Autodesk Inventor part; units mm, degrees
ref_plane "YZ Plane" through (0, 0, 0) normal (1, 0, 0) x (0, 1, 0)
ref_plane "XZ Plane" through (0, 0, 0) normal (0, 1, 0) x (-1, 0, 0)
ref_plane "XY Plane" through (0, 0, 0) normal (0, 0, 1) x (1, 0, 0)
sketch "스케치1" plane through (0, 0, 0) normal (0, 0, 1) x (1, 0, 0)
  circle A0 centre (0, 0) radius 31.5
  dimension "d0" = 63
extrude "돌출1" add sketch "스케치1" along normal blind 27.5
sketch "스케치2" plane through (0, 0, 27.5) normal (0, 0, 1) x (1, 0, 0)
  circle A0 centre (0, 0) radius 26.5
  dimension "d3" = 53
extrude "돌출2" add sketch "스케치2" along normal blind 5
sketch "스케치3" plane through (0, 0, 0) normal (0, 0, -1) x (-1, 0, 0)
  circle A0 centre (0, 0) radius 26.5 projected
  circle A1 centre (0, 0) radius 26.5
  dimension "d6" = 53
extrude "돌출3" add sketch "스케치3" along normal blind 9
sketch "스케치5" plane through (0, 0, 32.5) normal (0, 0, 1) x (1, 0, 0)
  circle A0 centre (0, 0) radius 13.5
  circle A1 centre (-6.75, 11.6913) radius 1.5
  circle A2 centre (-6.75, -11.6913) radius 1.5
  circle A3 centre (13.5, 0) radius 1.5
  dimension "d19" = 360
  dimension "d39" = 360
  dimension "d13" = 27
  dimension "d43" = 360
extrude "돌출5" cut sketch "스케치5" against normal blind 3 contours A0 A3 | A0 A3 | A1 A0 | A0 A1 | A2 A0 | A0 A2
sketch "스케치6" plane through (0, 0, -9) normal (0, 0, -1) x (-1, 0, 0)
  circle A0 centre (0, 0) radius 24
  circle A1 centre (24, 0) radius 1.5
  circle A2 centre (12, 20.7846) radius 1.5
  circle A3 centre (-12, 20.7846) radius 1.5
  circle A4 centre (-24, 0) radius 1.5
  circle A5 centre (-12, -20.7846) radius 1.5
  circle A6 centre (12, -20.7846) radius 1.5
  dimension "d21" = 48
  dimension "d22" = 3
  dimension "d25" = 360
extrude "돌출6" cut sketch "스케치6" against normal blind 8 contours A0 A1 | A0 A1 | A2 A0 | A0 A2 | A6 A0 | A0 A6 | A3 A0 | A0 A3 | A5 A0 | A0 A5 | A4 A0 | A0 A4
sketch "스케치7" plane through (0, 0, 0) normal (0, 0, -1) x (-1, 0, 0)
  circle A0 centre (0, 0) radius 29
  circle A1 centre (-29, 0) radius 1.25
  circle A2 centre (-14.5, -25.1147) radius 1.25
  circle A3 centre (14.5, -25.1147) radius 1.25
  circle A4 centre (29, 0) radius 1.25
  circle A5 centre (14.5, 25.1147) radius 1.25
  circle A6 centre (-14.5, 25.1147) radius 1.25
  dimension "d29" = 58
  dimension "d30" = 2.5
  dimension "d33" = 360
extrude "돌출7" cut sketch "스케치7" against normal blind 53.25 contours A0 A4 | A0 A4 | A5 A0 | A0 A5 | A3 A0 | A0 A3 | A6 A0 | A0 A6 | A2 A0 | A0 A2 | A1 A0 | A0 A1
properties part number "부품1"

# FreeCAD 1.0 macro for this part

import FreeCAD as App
import Part
import Sketcher
from FreeCAD import Vector
Q = App.Units.Quantity

doc = App.newDocument("Part")
body = doc.addObject("PartDesign::Body", "Body")

sketch1 = doc.addObject("Sketcher::SketchObject", "Sketch")
body.addObject(sketch1)
sketch1.AttachmentSupport = (doc.XY_Plane, [""])
sketch1.MapMode = "FlatFace"
sketch1.addGeometry(Part.Circle(Vector(0, 0, 0), Vector(0, 0, 1), 31.5), False)
sketch1.addConstraint([
    Sketcher.Constraint("Coincident", 0, 3, -1, 1),
    Sketcher.Constraint("Diameter", 0, Q("63 mm")),
])
pad1 = doc.addObject("PartDesign::Pad", "Pad")
body.addObject(pad1)
pad1.Profile = sketch1
pad1.Length = 27.5

sketch2 = doc.addObject("Sketcher::SketchObject", "Sketch001")
body.addObject(sketch2)
sketch2.AttachmentSupport = (doc.XY_Plane, [""])
sketch2.MapMode = "FlatFace"
sketch2.AttachmentOffset = App.Placement(Vector(0, 0, 27.5), App.Rotation())
sketch2.addGeometry(Part.Circle(Vector(0, 0, 0), Vector(0, 0, 1), 26.5), False)
sketch2.addConstraint([
    Sketcher.Constraint("Coincident", 0, 3, -1, 1),
    Sketcher.Constraint("Diameter", 0, Q("53 mm")),
])
pad2 = doc.addObject("PartDesign::Pad", "Pad001")
body.addObject(pad2)
pad2.Profile = sketch2
pad2.Length = 5

sketch3 = doc.addObject("Sketcher::SketchObject", "Sketch002")
body.addObject(sketch3)
sketch3.AttachmentSupport = (doc.XY_Plane, [""])
sketch3.MapMode = "FlatFace"
sketch3.addGeometry(Part.Circle(Vector(0, 0, 0), Vector(0, 0, 1), 26.5), False)
sketch3.addConstraint([
    Sketcher.Constraint("Coincident", 0, 3, -1, 1),
    Sketcher.Constraint("Diameter", 0, Q("53 mm")),
])
pad3 = doc.addObject("PartDesign::Pad", "Pad002")
body.addObject(pad3)
pad3.Profile = sketch3
pad3.Length = 9
pad3.Reversed = True

sketch4 = doc.addObject("Sketcher::SketchObject", "Sketch003")
body.addObject(sketch4)
sketch4.AttachmentSupport = (doc.XY_Plane, [""])
sketch4.MapMode = "FlatFace"
sketch4.AttachmentOffset = App.Placement(Vector(0, 0, 32.5), App.Rotation())
sketch4.addGeometry([
    Part.Circle(Vector(13.5, 0, 0), Vector(0, 0, 1), 1.5),
    Part.Circle(Vector(-6.75, 11.6913, 0), Vector(0, 0, 1), 1.5),
    Part.Circle(Vector(-6.75, -11.6913, 0), Vector(0, 0, 1), 1.5),
], False)
sketch4.addConstraint([
    Sketcher.Constraint("Equal", 0, 1),
    Sketcher.Constraint("Equal", 1, 2),
    Sketcher.Constraint("Symmetric", 1, 3, 2, 3, -1),
    Sketcher.Constraint("PointOnObject", 0, 3, -1),
    Sketcher.Constraint("Diameter", 0, Q("3 mm")),
    Sketcher.Constraint("DistanceX", -1, 1, 0, 3, Q("13.5 mm")),
    Sketcher.Constraint("DistanceX", 1, 3, -1, 1, Q("6.75 mm")),
    Sketcher.Constraint("DistanceY", -1, 1, 1, 3, Q("11.6913 mm")),
])
pocket1 = doc.addObject("PartDesign::Pocket", "Pocket")
body.addObject(pocket1)
pocket1.Profile = sketch4
pocket1.Length = 3

sketch5 = doc.addObject("Sketcher::SketchObject", "Sketch004")
body.addObject(sketch5)
sketch5.AttachmentSupport = (doc.XY_Plane, [""])
sketch5.MapMode = "FlatFace"
sketch5.AttachmentOffset = App.Placement(Vector(0, 0, -9), App.Rotation())
sketch5.addGeometry([
    Part.Circle(Vector(-24, 0, 0), Vector(0, 0, 1), 1.5),
    Part.Circle(Vector(-12, 20.7846, 0), Vector(0, 0, 1), 1.5),
    Part.Circle(Vector(-12, -20.7846, 0), Vector(0, 0, 1), 1.5),
    Part.Circle(Vector(12, 20.7846, 0), Vector(0, 0, 1), 1.5),
    Part.Circle(Vector(12, -20.7846, 0), Vector(0, 0, 1), 1.5),
    Part.Circle(Vector(24, 0, 0), Vector(0, 0, 1), 1.5),
], False)
sketch5.addConstraint([
    Sketcher.Constraint("Equal", 0, 1),
    Sketcher.Constraint("Equal", 1, 2),
    Sketcher.Constraint("Equal", 2, 3),
    Sketcher.Constraint("Equal", 3, 4),
    Sketcher.Constraint("Equal", 4, 5),
    Sketcher.Constraint("Symmetric", 2, 3, 3, 3, -1, 1),
    Sketcher.Constraint("Symmetric", 1, 3, 4, 3, -1, 1),
    Sketcher.Constraint("Symmetric", 0, 3, 5, 3, -1, 1),
    Sketcher.Constraint("Symmetric", 1, 3, 3, 3, -2),
    Sketcher.Constraint("PointOnObject", 0, 3, -1),
    Sketcher.Constraint("Diameter", 0, Q("3 mm")),
    Sketcher.Constraint("DistanceX", 0, 3, 5, 3, Q("48 mm")),
    Sketcher.Constraint("DistanceX", 1, 3, -1, 1, Q("12 mm")),
    Sketcher.Constraint("DistanceY", -1, 1, 1, 3, Q("20.7846 mm")),
])
pocket2 = doc.addObject("PartDesign::Pocket", "Pocket001")
body.addObject(pocket2)
pocket2.Profile = sketch5
pocket2.Length = 8
pocket2.Reversed = True

sketch6 = doc.addObject("Sketcher::SketchObject", "Sketch005")
body.addObject(sketch6)
sketch6.AttachmentSupport = (doc.XY_Plane, [""])
sketch6.MapMode = "FlatFace"
sketch6.addGeometry([
    Part.Circle(Vector(-29, 0, 0), Vector(0, 0, 1), 1.25),
    Part.Circle(Vector(-14.5, 25.1147, 0), Vector(0, 0, 1), 1.25),
    Part.Circle(Vector(-14.5, -25.1147, 0), Vector(0, 0, 1), 1.25),
    Part.Circle(Vector(14.5, 25.1147, 0), Vector(0, 0, 1), 1.25),
    Part.Circle(Vector(14.5, -25.1147, 0), Vector(0, 0, 1), 1.25),
    Part.Circle(Vector(29, 0, 0), Vector(0, 0, 1), 1.25),
], False)
sketch6.addConstraint([
    Sketcher.Constraint("Equal", 0, 1),
    Sketcher.Constraint("Equal", 1, 2),
    Sketcher.Constraint("Equal", 2, 3),
    Sketcher.Constraint("Equal", 3, 4),
    Sketcher.Constraint("Equal", 4, 5),
    Sketcher.Constraint("Symmetric", 2, 3, 3, 3, -1, 1),
    Sketcher.Constraint("Symmetric", 1, 3, 4, 3, -1, 1),
    Sketcher.Constraint("Symmetric", 0, 3, 5, 3, -1, 1),
    Sketcher.Constraint("Symmetric", 1, 3, 3, 3, -2),
    Sketcher.Constraint("PointOnObject", 0, 3, -1),
    Sketcher.Constraint("Diameter", 0, Q("2.5 mm")),
    Sketcher.Constraint("DistanceX", 0, 3, 5, 3, Q("58 mm")),
    Sketcher.Constraint("DistanceX", 1, 3, 3, 3, Q("29 mm")),
    Sketcher.Constraint("DistanceY", -1, 1, 1, 3, Q("25.1147 mm")),
])
pocket3 = doc.addObject("PartDesign::Pocket", "Pocket002")
body.addObject(pocket3)
pocket3.Profile = sketch6
pocket3.Length = 53.25
pocket3.Reversed = True

doc.recompute()
